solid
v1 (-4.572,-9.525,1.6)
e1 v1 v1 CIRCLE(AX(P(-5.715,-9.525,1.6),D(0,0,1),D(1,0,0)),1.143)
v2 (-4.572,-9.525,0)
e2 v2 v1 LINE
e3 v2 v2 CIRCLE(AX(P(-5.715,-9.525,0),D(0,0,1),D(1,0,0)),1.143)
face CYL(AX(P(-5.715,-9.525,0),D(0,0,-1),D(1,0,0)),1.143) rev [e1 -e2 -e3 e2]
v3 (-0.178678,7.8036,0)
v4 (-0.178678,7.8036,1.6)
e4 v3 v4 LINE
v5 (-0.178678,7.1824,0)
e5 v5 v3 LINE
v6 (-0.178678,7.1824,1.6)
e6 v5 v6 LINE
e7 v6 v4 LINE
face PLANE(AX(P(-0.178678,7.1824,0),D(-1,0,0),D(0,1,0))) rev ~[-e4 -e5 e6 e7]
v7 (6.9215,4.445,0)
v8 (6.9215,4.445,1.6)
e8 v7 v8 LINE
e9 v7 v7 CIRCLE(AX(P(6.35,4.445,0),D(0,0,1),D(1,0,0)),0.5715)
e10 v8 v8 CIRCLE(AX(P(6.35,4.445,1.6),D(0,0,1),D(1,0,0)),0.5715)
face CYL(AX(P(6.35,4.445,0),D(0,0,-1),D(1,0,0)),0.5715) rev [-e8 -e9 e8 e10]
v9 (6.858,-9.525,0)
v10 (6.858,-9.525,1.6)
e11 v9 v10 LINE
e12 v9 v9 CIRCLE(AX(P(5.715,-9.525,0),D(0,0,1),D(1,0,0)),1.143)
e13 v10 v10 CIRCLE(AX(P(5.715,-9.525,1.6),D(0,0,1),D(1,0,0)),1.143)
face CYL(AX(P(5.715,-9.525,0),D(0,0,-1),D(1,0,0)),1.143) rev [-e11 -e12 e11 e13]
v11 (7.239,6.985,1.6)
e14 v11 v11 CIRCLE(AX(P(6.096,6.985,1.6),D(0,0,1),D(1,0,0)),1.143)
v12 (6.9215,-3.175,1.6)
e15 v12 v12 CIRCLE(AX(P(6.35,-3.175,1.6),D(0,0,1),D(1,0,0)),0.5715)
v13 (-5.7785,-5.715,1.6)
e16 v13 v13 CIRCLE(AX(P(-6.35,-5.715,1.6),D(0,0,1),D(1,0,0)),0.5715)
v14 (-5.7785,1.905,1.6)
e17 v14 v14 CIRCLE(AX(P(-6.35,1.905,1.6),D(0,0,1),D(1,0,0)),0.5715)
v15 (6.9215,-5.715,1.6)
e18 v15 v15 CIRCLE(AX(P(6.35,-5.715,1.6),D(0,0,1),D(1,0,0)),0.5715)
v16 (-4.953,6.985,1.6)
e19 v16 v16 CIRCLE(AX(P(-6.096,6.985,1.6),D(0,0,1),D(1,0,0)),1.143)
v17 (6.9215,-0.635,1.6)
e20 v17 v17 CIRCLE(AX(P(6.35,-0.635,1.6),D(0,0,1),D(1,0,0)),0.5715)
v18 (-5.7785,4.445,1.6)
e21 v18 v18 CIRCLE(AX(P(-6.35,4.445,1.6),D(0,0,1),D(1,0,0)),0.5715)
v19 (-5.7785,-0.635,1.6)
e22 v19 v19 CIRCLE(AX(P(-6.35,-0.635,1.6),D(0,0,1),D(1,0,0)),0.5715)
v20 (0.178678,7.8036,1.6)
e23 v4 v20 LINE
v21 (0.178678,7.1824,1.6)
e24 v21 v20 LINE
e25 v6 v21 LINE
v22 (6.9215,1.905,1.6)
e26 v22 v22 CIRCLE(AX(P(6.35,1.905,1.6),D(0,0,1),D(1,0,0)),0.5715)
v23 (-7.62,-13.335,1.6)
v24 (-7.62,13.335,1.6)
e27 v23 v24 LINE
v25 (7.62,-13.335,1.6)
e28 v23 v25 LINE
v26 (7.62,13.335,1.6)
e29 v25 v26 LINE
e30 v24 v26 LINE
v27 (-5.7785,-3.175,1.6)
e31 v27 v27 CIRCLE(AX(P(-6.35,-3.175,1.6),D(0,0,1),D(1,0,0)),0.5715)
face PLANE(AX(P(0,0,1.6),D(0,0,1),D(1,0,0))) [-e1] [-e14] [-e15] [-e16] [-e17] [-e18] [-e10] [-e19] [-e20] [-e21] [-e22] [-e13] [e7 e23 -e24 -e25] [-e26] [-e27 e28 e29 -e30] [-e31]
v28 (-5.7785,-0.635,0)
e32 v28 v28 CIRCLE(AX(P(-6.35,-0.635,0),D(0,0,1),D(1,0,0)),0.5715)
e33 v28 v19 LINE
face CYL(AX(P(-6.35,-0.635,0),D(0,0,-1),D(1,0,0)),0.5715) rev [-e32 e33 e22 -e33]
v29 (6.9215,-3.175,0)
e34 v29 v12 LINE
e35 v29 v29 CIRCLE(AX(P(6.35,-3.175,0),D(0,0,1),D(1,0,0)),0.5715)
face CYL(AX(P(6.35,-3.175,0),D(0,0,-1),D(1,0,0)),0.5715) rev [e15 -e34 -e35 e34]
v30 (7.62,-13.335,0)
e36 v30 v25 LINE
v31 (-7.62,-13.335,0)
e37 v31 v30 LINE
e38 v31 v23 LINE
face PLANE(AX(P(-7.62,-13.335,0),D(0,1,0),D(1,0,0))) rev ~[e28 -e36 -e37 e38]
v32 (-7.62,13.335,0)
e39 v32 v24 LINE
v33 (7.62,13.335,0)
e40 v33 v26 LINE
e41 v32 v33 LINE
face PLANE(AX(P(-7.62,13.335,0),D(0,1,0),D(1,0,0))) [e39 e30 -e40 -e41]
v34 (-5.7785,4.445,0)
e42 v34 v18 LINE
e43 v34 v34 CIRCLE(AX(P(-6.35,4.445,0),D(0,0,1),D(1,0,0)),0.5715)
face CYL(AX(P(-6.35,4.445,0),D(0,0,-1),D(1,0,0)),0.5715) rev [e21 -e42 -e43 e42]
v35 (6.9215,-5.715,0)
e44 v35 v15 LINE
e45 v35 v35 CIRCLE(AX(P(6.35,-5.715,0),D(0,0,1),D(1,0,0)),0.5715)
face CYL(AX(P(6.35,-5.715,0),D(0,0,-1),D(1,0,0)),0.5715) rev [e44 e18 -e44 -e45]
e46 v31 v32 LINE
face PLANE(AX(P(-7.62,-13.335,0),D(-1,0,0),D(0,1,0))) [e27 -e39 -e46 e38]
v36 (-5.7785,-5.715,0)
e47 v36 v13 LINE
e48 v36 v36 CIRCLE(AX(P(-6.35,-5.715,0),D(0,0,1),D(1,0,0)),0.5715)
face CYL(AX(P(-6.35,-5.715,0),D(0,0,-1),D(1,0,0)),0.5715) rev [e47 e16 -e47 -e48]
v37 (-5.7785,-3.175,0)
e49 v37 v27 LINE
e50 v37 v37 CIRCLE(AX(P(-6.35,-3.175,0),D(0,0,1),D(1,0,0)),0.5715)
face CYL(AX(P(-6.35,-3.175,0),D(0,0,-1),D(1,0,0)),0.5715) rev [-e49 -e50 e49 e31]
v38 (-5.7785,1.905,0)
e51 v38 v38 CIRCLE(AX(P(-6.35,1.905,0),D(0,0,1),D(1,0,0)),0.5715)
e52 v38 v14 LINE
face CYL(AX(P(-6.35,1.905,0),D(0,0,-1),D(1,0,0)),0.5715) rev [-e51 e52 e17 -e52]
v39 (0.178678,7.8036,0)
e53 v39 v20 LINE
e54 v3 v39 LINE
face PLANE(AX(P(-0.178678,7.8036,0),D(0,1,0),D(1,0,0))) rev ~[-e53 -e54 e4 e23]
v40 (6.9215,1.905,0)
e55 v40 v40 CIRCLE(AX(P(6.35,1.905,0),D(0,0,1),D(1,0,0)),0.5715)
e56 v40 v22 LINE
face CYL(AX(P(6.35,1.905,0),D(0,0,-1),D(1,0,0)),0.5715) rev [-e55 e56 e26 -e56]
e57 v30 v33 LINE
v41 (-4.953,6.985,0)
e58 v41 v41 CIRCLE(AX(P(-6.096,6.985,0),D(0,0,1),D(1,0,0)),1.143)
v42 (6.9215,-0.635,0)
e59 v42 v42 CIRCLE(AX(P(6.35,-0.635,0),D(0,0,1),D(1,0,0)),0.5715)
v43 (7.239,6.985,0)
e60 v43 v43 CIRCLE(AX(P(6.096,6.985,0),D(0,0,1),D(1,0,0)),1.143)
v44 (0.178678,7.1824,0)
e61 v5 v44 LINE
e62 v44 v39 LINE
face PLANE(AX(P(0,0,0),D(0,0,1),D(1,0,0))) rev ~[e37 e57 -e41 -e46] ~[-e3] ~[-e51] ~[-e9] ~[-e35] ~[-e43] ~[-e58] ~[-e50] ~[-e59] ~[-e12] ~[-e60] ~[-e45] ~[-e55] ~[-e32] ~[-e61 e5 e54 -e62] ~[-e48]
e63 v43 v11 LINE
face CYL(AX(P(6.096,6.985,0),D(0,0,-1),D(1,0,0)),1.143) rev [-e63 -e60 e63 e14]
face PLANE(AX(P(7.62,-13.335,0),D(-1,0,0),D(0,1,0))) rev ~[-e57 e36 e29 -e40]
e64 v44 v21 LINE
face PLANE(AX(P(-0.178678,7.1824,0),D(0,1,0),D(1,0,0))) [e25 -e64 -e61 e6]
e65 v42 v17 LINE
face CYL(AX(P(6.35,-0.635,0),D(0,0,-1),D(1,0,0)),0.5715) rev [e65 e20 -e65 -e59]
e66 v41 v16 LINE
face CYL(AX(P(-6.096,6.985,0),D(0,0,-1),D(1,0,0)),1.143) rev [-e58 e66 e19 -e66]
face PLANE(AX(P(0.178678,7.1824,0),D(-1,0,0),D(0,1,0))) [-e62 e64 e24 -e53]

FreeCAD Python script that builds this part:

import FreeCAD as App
import Part
import Sketcher

V = App.Vector
Q = App.Units.Quantity

doc = App.newDocument("Part")
body = doc.addObject("PartDesign::Body", "Body")

# Sketch on XY plane
sketch1 = body.newObject("Sketcher::SketchObject", "Sketch")
sketch1.AttachmentSupport = (doc.getObject("XY_Plane"), [""])
sketch1.MapMode = "FlatFace"
sketch1.addGeometry(Part.LineSegment(V(-7.62, 13.34, 0), V(-7.62, -13.34, 0)), False)
sketch1.addGeometry(Part.LineSegment(V(-7.62, -13.34, 0), V(7.62, -13.34, 0)), False)
sketch1.addGeometry(Part.LineSegment(V(7.62, -13.34, 0), V(7.62, 13.34, 0)), False)
sketch1.addGeometry(Part.LineSegment(V(7.62, 13.34, 0), V(-7.62, 13.34, 0)), False)
sketch1.addGeometry(Part.Circle(V(-5.71, -9.53, 0), V(0, 0, 1), 1.14), False)
sketch1.addGeometry(Part.Circle(V(-6.35, -5.71, 0), V(0, 0, 1), 0.57), False)
sketch1.addGeometry(Part.Circle(V(-6.35, -3.17, 0), V(0, 0, 1), 0.57), False)
sketch1.addGeometry(Part.Circle(V(5.71, -9.53, 0), V(0, 0, 1), 1.14), False)
sketch1.addGeometry(Part.Circle(V(6.35, -5.71, 0), V(0, 0, 1), 0.57), False)
sketch1.addGeometry(Part.Circle(V(6.35, -3.17, 0), V(0, 0, 1), 0.57), False)
sketch1.addGeometry(Part.Circle(V(-6.35, -0.64, 0), V(0, 0, 1), 0.57), False)
sketch1.addGeometry(Part.Circle(V(-6.35, 1.91, 0), V(0, 0, 1), 0.57), False)
sketch1.addGeometry(Part.Circle(V(-6.35, 4.45, 0), V(0, 0, 1), 0.57), False)
sketch1.addGeometry(Part.Circle(V(-6.1, 6.99, 0), V(0, 0, 1), 1.14), False)
sketch1.addGeometry(Part.Circle(V(6.35, -0.64, 0), V(0, 0, 1), 0.57), False)
sketch1.addGeometry(Part.Circle(V(6.35, 1.91, 0), V(0, 0, 1), 0.57), False)
sketch1.addGeometry(Part.LineSegment(V(0.18, 7.18, 0), V(-0.18, 7.18, 0)), False)
sketch1.addGeometry(Part.LineSegment(V(-0.18, 7.18, 0), V(-0.18, 7.8, 0)), False)
sketch1.addGeometry(Part.LineSegment(V(-0.18, 7.8, 0), V(0.18, 7.8, 0)), False)
sketch1.addGeometry(Part.LineSegment(V(0.18, 7.8, 0), V(0.18, 7.18, 0)), False)
sketch1.addGeometry(Part.Circle(V(6.35, 4.45, 0), V(0, 0, 1), 0.57), False)
sketch1.addGeometry(Part.Circle(V(6.1, 6.99, 0), V(0, 0, 1), 1.14), False)
sketch1.addConstraint(Sketcher.Constraint("Coincident", 0, 2, 1, 1))
sketch1.addConstraint(Sketcher.Constraint("Coincident", 1, 2, 2, 1))
sketch1.addConstraint(Sketcher.Constraint("Coincident", 2, 2, 3, 1))
sketch1.addConstraint(Sketcher.Constraint("Coincident", 3, 2, 0, 1))
sketch1.addConstraint(Sketcher.Constraint("Coincident", 16, 2, 17, 1))
sketch1.addConstraint(Sketcher.Constraint("Coincident", 17, 2, 18, 1))
sketch1.addConstraint(Sketcher.Constraint("Coincident", 18, 2, 19, 1))
sketch1.addConstraint(Sketcher.Constraint("Coincident", 19, 2, 16, 1))
sketch1.addConstraint(Sketcher.Constraint("Vertical", 0))
sketch1.addConstraint(Sketcher.Constraint("Horizontal", 1))
sketch1.addConstraint(Sketcher.Constraint("Vertical", 2))
sketch1.addConstraint(Sketcher.Constraint("Horizontal", 3))
sketch1.addConstraint(Sketcher.Constraint("Horizontal", 16))
sketch1.addConstraint(Sketcher.Constraint("Vertical", 17))
sketch1.addConstraint(Sketcher.Constraint("Horizontal", 18))
sketch1.addConstraint(Sketcher.Constraint("Vertical", 19))
sketch1.addConstraint(Sketcher.Constraint("Equal", 5, 6))
sketch1.addConstraint(Sketcher.Constraint("Equal", 4, 7))
sketch1.addConstraint(Sketcher.Constraint("Equal", 6, 8))
sketch1.addConstraint(Sketcher.Constraint("Equal", 8, 9))
sketch1.addConstraint(Sketcher.Constraint("Equal", 9, 10))
sketch1.addConstraint(Sketcher.Constraint("Equal", 10, 11))
sketch1.addConstraint(Sketcher.Constraint("Equal", 11, 12))
sketch1.addConstraint(Sketcher.Constraint("Equal", 7, 13))
sketch1.addConstraint(Sketcher.Constraint("Equal", 12, 14))
sketch1.addConstraint(Sketcher.Constraint("Equal", 14, 15))
sketch1.addConstraint(Sketcher.Constraint("Equal", 15, 20))
sketch1.addConstraint(Sketcher.Constraint("Equal", 13, 21))
sketch1.addConstraint(Sketcher.Constraint("Symmetric", 0, 2, 2, 2, -1, 1))
sketch1.addConstraint(Sketcher.Constraint("Symmetric", 4, 3, 7, 3, -2))
sketch1.addConstraint(Sketcher.Constraint("Symmetric", 5, 3, 8, 3, -2))
sketch1.addConstraint(Sketcher.Constraint("Symmetric", 6, 3, 9, 3, -2))
sketch1.addConstraint(Sketcher.Constraint("Symmetric", 10, 3, 14, 3, -2))
sketch1.addConstraint(Sketcher.Constraint("Symmetric", 11, 3, 15, 3, -2))
sketch1.addConstraint(Sketcher.Constraint("Symmetric", 12, 3, 20, 3, -2))
sketch1.addConstraint(Sketcher.Constraint("Symmetric", 13, 3, 21, 3, -2))
sketch1.addConstraint(Sketcher.Constraint("Vertical", 5, 3, 6, 3))
sketch1.addConstraint(Sketcher.Constraint("Vertical", 6, 3, 10, 3))
sketch1.addConstraint(Sketcher.Constraint("Vertical", 10, 3, 11, 3))
sketch1.addConstraint(Sketcher.Constraint("Vertical", 11, 3, 12, 3))
sketch1.addConstraint(Sketcher.Constraint("Diameter", 4, Q("0.09 in")))
sketch1.addConstraint(Sketcher.Constraint("Diameter", 5, Q("0.045 in")))
sketch1.addConstraint(Sketcher.Constraint("DistanceX", 1, 1, 1, 2, Q("0.6 in")))
sketch1.addConstraint(Sketcher.Constraint("DistanceY", 0, 2, 0, 1, Q("1.05 in")))
sketch1.addConstraint(Sketcher.Constraint("DistanceY", 5, 3, 6, 3, Q("0.1 in")))
sketch1.addConstraint(Sketcher.Constraint("DistanceX", 5, 3, 8, 3, Q("0.5 in")))
sketch1.addConstraint(Sketcher.Constraint("DistanceY", 6, 3, 10, 3, Q("0.1 in")))
sketch1.addConstraint(Sketcher.Constraint("DistanceY", 10, 3, 11, 3, Q("0.1 in")))
sketch1.addConstraint(Sketcher.Constraint("DistanceY", 11, 3, 12, 3, Q("0.1 in")))
sketch1.addConstraint(Sketcher.Constraint("DistanceY", 12, 3, 13, 3, Q("0.1 in")))
sketch1.addConstraint(Sketcher.Constraint("DistanceY", 0, 2, 5, 3, Q("0.3 in")))
sketch1.addConstraint(Sketcher.Constraint("DistanceX", 13, 3, -1, 1, Q("0.24 in")))
sketch1.addConstraint(Sketcher.Constraint("DistanceY", 4, 3, 5, 3, Q("0.15 in")))
sketch1.addConstraint(Sketcher.Constraint("DistanceX", 4, 3, 7, 3, Q("0.45 in")))
sketch1.addConstraint(Sketcher.Constraint("DistanceY", 17, 1, 17, 2, Q("0.6212 mm")))
sketch1.addConstraint(Sketcher.Constraint("DistanceY", -1, 1, 16, 2, Q("7.1824 mm")))
sketch1.addConstraint(Sketcher.Constraint("DistanceX", 16, 2, 16, 1, Q("0.357356 mm")))
sketch1.addConstraint(Sketcher.Constraint("DistanceX", 16, 2, -1, 1, Q("0.178678 mm")))
pad1 = body.newObject("PartDesign::Pad", "Pad")
pad1.Profile = sketch1
pad1.Length = 1.6

doc.recompute()
